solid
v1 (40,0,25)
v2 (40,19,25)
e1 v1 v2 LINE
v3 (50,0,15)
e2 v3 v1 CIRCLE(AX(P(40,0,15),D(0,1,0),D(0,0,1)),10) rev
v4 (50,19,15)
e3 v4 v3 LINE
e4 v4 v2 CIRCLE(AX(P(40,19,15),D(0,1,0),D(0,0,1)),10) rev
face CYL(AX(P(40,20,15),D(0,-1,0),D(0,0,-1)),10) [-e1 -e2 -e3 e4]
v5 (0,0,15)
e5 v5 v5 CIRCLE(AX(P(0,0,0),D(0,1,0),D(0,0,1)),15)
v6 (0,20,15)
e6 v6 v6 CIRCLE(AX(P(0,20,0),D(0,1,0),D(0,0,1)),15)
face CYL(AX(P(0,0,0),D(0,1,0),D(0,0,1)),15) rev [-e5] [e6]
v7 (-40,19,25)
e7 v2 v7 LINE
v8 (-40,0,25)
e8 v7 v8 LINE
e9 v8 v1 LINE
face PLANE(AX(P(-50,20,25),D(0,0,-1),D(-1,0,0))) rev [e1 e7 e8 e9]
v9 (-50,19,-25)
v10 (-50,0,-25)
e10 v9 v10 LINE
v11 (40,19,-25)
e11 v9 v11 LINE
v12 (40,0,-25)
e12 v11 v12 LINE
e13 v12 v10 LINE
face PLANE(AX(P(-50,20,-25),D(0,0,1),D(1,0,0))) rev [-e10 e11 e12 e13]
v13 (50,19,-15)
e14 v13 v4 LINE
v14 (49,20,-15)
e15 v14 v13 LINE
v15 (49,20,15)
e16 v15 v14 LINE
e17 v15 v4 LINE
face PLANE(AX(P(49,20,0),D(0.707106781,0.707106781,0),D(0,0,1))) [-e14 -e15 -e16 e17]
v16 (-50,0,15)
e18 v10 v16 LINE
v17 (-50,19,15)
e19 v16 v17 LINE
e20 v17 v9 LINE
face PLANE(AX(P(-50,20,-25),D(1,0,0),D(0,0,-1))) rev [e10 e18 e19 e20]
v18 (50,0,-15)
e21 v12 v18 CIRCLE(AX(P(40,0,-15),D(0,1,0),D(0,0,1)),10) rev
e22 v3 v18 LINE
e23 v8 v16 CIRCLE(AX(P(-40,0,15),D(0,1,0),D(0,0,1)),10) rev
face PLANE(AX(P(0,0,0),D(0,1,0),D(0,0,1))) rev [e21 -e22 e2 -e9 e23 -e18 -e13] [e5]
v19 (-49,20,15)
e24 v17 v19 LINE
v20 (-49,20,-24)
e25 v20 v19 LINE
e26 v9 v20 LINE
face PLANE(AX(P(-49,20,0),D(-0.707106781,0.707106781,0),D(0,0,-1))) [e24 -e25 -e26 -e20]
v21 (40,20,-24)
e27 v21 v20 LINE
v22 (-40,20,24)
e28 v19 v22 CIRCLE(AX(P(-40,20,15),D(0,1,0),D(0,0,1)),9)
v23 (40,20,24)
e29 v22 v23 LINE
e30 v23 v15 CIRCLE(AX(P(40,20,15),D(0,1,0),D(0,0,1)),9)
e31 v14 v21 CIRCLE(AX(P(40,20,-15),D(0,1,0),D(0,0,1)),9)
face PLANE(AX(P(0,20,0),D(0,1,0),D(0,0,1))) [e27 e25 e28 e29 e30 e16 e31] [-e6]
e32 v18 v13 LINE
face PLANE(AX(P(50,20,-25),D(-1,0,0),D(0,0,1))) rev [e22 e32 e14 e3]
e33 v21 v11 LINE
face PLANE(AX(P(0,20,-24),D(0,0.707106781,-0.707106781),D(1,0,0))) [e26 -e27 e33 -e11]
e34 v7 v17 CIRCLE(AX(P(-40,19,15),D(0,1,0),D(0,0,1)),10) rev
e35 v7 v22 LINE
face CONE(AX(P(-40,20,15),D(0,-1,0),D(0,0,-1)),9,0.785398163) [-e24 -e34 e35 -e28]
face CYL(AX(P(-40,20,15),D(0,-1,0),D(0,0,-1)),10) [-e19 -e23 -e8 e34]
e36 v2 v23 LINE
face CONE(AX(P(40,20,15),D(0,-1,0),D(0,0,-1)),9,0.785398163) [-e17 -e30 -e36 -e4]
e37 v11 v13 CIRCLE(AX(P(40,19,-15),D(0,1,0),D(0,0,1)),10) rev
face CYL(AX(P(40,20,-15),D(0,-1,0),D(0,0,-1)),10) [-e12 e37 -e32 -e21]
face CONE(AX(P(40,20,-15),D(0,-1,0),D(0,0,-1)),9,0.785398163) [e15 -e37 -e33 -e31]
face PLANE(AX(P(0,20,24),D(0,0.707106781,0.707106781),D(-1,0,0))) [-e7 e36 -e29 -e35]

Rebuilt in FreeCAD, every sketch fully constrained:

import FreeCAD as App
import Part
import Sketcher
Q = App.Units.Quantity


def edges_at(feature, points):
    """Names of the edges that pass closest to the given points."""
    edges = feature.Shape.Edges
    near = lambda p: min(range(len(edges)), key=lambda i: edges[i].distToShape(Part.Vertex(*p))[0])
    return sorted({f"Edge{near(p) + 1}" for p in points})


def add_polygon(sketch, points):
    """Adds a closed chain of lines whose ends are joined by coincident constraints."""
    first, n = sketch.GeometryCount, len(points)
    for a, b in zip(points, points[1:] + points[:1]):
        sketch.addGeometry(Part.LineSegment(App.Vector(*a, 0), App.Vector(*b, 0)), False)
    for i in range(n):
        sketch.addConstraint(Sketcher.Constraint("Coincident", first + i, 2, first + (i + 1) % n, 1))

doc = App.newDocument("Part")
body = doc.addObject("PartDesign::Body", "Body")

sketch1 = doc.addObject("Sketcher::SketchObject", "Sketch")
body.addObject(sketch1)
sketch1.AttachmentSupport = (doc.XZ_Plane, [""])
sketch1.MapMode = "FlatFace"
add_polygon(sketch1, [(-50, -25), (-50, 25), (50, 25), (50, -25)])
sketch1.addConstraint([
    Sketcher.Constraint("Vertical", 0),
    Sketcher.Constraint("Horizontal", 1),
    Sketcher.Constraint("Vertical", 2),
    Sketcher.Constraint("Horizontal", 3),
    Sketcher.Constraint("Symmetric", 0, 2, 2, 2, -1, 1),
    Sketcher.Constraint("DistanceX", 1, 1, 1, 2, Q("100 mm")),
    Sketcher.Constraint("DistanceY", 0, 1, 0, 2, Q("50 mm")),
])
pad1 = doc.addObject("PartDesign::Pad", "Pad")
body.addObject(pad1)
pad1.Profile = sketch1
pad1.Length = 20
pad1.Reversed = True

sketch2 = doc.addObject("Sketcher::SketchObject", "Sketch001")
body.addObject(sketch2)
sketch2.AttachmentSupport = (doc.XZ_Plane, [""])
sketch2.MapMode = "FlatFace"
sketch2.AttachmentOffset = App.Placement(App.Vector(0, 0, -20), App.Rotation())
sketch2.addGeometry(Part.Circle(App.Vector(0, 0, 0), App.Vector(0, 0, 1), 15), False)
sketch2.addConstraint([
    Sketcher.Constraint("Coincident", 0, 3, -1, 1),
    Sketcher.Constraint("Diameter", 0, Q("30 mm")),
])
pocket1 = doc.addObject("PartDesign::Pocket", "Pocket")
body.addObject(pocket1)
pocket1.Profile = sketch2
pocket1.Length = 20
pocket1.Reversed = True
doc.recompute()

fillet = doc.addObject("PartDesign::Fillet", "Fillet")
body.addObject(fillet)
fillet.Base = (pocket1, edges_at(pocket1, [(50, 10, 25), (-50, 10, 25), (50, 10, -25)]))
fillet.Radius = 10
doc.recompute()

chamfer = doc.addObject("PartDesign::Chamfer", "Chamfer")
body.addObject(chamfer)
chamfer.Base = (fillet, edges_at(fillet, [
    (-50, 20, -5),
    (-5, 20, -25),
    (50, 20, 0),
    (0, 20, 25),
    (-47.071, 20, 22.071),
    (47.071, 20, 22.071),
    (47.071, 20, -22.071),
]))
chamfer.Size = 1

doc.recompute()
